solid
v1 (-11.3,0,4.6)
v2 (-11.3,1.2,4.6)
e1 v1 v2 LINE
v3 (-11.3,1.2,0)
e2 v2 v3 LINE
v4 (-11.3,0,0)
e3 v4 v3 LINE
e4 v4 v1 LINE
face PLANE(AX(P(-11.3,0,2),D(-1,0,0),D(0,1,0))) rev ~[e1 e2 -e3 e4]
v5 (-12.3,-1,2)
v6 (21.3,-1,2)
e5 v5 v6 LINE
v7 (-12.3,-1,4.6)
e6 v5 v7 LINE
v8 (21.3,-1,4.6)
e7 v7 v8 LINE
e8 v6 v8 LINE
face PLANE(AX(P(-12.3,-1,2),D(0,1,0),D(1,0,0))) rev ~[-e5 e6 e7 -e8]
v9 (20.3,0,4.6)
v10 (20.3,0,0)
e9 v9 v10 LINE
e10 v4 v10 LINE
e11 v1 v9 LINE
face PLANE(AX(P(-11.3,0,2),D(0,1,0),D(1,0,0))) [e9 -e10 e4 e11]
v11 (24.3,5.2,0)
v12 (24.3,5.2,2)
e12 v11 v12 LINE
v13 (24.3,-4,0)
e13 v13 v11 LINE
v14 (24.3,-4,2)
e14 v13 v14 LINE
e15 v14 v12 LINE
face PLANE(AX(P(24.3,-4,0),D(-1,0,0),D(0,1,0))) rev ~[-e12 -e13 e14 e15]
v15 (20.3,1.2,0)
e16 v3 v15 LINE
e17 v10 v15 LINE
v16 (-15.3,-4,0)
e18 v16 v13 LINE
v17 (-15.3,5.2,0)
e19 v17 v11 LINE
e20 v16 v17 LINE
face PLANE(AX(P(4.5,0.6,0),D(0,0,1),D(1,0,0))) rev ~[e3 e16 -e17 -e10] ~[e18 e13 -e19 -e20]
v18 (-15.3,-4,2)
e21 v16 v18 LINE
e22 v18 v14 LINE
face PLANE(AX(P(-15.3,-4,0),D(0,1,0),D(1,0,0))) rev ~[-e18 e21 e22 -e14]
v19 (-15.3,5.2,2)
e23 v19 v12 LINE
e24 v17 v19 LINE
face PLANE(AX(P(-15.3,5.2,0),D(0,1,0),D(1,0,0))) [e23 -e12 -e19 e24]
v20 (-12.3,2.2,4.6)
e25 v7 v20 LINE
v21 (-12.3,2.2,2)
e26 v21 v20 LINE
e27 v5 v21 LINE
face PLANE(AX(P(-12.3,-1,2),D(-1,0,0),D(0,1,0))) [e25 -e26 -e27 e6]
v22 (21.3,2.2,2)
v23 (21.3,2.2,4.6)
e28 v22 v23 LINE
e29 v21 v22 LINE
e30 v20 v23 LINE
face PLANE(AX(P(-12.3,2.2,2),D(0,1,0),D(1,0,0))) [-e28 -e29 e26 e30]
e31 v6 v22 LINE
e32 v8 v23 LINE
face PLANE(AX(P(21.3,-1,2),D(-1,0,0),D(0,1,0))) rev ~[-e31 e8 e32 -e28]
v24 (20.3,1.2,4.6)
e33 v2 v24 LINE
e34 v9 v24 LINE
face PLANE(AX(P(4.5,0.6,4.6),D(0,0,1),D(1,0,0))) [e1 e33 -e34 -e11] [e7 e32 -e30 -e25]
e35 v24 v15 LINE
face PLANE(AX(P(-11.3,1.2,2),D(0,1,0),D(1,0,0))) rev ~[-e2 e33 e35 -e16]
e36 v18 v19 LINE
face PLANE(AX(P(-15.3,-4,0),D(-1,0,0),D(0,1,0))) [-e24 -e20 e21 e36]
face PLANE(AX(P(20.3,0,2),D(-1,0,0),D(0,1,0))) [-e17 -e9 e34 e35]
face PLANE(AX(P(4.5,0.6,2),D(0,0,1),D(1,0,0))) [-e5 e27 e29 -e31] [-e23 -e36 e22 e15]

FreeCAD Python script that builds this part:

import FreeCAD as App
import Part
import Sketcher
from FreeCAD import Vector


def add_polygon(sketch, points):
    """Adds a closed chain of lines whose ends are joined by coincident constraints."""
    first, n = sketch.GeometryCount, len(points)
    for a, b in zip(points, points[1:] + points[:1]):
        sketch.addGeometry(Part.LineSegment(App.Vector(*a, 0), App.Vector(*b, 0)), False)
    for i in range(n):
        sketch.addConstraint(Sketcher.Constraint("Coincident", first + i, 2, first + (i + 1) % n, 1))

doc = App.newDocument("Part")
params = doc.addObject("Spreadsheet::Sheet", "Params")
for row, (alias, value) in enumerate([
    ("sketch1_width", "39.6 mm"),
    ("sketch1_width2", "31.6 mm"),
    ("sketch1_height", "9.2 mm"),
    ("sketch1_height2", "1.2 mm"),
    ("pad1_length", "2 mm"),
    ("sketch2_width", "33.6 mm"),
    ("sketch2_width2", "31.6 mm"),
    ("sketch2_height", "3.2 mm"),
    ("sketch2_height2", "1.2 mm"),
    ("pad2_length", "2.6 mm"),
], start=1):
    params.set(f"A{row}", alias)
    params.set(f"B{row}", "=" + value)
    params.setAlias(f"B{row}", alias)

body = doc.addObject("PartDesign::Body", "Body")

# Sketch on XY plane
sketch1 = body.newObject("Sketcher::SketchObject", "Sketch")
sketch1.AttachmentSupport = (doc.getObject("XY_Plane"), [""])
sketch1.MapMode = "FlatFace"
add_polygon(sketch1, [(-15.3, 5.2), (-15.3, -4), (24.3, -4), (24.3, 5.2)])  # lines 0-3
add_polygon(sketch1, [(20.3, 0), (-11.3, 0), (-11.3, 1.2), (20.3, 1.2)])  # lines 4-7
sketch1.addConstraint([
    Sketcher.Constraint("Vertical", 0),
    Sketcher.Constraint("Horizontal", 1),
    Sketcher.Constraint("Vertical", 2),
    Sketcher.Constraint("Horizontal", 3),
    Sketcher.Constraint("Horizontal", 4),
    Sketcher.Constraint("Vertical", 5),
    Sketcher.Constraint("Horizontal", 6),
    Sketcher.Constraint("Vertical", 7),
    Sketcher.Constraint("PointOnObject", 4, 2, -1),
    Sketcher.Constraint("DistanceX", 1, 1, 1, 2, 39.6),
    Sketcher.Constraint("DistanceX", 4, 2, 4, 1, 31.6),
    Sketcher.Constraint("DistanceY", 0, 2, 0, 1, 9.2),
    Sketcher.Constraint("DistanceY", 5, 1, 5, 2, 1.2),
    Sketcher.Constraint("DistanceY", 0, 2, -1, 1, 4.0),
    Sketcher.Constraint("DistanceX", 0, 2, 4, 2, 4.0),
    Sketcher.Constraint("DistanceX", 0, 2, -1, 1, 15.3),
])
sketch1.setExpression("Constraints[17]", "Params.sketch1_width")
sketch1.setExpression("Constraints[18]", "Params.sketch1_width2")
sketch1.setExpression("Constraints[19]", "Params.sketch1_height")
sketch1.setExpression("Constraints[20]", "Params.sketch1_height2")
pad1 = body.newObject("PartDesign::Pad", "Pad")
pad1.Profile = sketch1
pad1.setExpression("Length", "Params.pad1_length")

# Sketch on XY plane
sketch2 = body.newObject("Sketcher::SketchObject", "Sketch001")
sketch2.AttachmentSupport = (doc.getObject("XY_Plane"), [""])
sketch2.MapMode = "FlatFace"
sketch2.AttachmentOffset = App.Placement(Vector(0, 0, 2), App.Rotation())
add_polygon(sketch2, [(-12.3, 2.2), (-12.3, -1), (21.3, -1), (21.3, 2.2)])  # lines 0-3
add_polygon(sketch2, [(20.3, 0), (-11.3, 0), (-11.3, 1.2), (20.3, 1.2)])  # lines 4-7
sketch2.addConstraint([
    Sketcher.Constraint("Vertical", 0),
    Sketcher.Constraint("Horizontal", 1),
    Sketcher.Constraint("Vertical", 2),
    Sketcher.Constraint("Horizontal", 3),
    Sketcher.Constraint("Horizontal", 4),
    Sketcher.Constraint("Vertical", 5),
    Sketcher.Constraint("Horizontal", 6),
    Sketcher.Constraint("Vertical", 7),
    Sketcher.Constraint("PointOnObject", 4, 2, -1),
    Sketcher.Constraint("DistanceX", 1, 1, 1, 2, 33.6),
    Sketcher.Constraint("DistanceX", 4, 2, 4, 1, 31.6),
    Sketcher.Constraint("DistanceY", 0, 2, 0, 1, 3.2),
    Sketcher.Constraint("DistanceY", 5, 1, 5, 2, 1.2),
    Sketcher.Constraint("DistanceY", 0, 2, -1, 1, 1.0),
    Sketcher.Constraint("DistanceX", 0, 2, 4, 2, 1.0),
    Sketcher.Constraint("DistanceX", 0, 2, -1, 1, 12.3),
])
sketch2.setExpression("Constraints[17]", "Params.sketch2_width")
sketch2.setExpression("Constraints[18]", "Params.sketch2_width2")
sketch2.setExpression("Constraints[19]", "Params.sketch2_height")
sketch2.setExpression("Constraints[20]", "Params.sketch2_height2")
pad2 = body.newObject("PartDesign::Pad", "Pad001")
pad2.Profile = sketch2
pad2.setExpression("Length", "Params.pad2_length")

doc.recompute()
